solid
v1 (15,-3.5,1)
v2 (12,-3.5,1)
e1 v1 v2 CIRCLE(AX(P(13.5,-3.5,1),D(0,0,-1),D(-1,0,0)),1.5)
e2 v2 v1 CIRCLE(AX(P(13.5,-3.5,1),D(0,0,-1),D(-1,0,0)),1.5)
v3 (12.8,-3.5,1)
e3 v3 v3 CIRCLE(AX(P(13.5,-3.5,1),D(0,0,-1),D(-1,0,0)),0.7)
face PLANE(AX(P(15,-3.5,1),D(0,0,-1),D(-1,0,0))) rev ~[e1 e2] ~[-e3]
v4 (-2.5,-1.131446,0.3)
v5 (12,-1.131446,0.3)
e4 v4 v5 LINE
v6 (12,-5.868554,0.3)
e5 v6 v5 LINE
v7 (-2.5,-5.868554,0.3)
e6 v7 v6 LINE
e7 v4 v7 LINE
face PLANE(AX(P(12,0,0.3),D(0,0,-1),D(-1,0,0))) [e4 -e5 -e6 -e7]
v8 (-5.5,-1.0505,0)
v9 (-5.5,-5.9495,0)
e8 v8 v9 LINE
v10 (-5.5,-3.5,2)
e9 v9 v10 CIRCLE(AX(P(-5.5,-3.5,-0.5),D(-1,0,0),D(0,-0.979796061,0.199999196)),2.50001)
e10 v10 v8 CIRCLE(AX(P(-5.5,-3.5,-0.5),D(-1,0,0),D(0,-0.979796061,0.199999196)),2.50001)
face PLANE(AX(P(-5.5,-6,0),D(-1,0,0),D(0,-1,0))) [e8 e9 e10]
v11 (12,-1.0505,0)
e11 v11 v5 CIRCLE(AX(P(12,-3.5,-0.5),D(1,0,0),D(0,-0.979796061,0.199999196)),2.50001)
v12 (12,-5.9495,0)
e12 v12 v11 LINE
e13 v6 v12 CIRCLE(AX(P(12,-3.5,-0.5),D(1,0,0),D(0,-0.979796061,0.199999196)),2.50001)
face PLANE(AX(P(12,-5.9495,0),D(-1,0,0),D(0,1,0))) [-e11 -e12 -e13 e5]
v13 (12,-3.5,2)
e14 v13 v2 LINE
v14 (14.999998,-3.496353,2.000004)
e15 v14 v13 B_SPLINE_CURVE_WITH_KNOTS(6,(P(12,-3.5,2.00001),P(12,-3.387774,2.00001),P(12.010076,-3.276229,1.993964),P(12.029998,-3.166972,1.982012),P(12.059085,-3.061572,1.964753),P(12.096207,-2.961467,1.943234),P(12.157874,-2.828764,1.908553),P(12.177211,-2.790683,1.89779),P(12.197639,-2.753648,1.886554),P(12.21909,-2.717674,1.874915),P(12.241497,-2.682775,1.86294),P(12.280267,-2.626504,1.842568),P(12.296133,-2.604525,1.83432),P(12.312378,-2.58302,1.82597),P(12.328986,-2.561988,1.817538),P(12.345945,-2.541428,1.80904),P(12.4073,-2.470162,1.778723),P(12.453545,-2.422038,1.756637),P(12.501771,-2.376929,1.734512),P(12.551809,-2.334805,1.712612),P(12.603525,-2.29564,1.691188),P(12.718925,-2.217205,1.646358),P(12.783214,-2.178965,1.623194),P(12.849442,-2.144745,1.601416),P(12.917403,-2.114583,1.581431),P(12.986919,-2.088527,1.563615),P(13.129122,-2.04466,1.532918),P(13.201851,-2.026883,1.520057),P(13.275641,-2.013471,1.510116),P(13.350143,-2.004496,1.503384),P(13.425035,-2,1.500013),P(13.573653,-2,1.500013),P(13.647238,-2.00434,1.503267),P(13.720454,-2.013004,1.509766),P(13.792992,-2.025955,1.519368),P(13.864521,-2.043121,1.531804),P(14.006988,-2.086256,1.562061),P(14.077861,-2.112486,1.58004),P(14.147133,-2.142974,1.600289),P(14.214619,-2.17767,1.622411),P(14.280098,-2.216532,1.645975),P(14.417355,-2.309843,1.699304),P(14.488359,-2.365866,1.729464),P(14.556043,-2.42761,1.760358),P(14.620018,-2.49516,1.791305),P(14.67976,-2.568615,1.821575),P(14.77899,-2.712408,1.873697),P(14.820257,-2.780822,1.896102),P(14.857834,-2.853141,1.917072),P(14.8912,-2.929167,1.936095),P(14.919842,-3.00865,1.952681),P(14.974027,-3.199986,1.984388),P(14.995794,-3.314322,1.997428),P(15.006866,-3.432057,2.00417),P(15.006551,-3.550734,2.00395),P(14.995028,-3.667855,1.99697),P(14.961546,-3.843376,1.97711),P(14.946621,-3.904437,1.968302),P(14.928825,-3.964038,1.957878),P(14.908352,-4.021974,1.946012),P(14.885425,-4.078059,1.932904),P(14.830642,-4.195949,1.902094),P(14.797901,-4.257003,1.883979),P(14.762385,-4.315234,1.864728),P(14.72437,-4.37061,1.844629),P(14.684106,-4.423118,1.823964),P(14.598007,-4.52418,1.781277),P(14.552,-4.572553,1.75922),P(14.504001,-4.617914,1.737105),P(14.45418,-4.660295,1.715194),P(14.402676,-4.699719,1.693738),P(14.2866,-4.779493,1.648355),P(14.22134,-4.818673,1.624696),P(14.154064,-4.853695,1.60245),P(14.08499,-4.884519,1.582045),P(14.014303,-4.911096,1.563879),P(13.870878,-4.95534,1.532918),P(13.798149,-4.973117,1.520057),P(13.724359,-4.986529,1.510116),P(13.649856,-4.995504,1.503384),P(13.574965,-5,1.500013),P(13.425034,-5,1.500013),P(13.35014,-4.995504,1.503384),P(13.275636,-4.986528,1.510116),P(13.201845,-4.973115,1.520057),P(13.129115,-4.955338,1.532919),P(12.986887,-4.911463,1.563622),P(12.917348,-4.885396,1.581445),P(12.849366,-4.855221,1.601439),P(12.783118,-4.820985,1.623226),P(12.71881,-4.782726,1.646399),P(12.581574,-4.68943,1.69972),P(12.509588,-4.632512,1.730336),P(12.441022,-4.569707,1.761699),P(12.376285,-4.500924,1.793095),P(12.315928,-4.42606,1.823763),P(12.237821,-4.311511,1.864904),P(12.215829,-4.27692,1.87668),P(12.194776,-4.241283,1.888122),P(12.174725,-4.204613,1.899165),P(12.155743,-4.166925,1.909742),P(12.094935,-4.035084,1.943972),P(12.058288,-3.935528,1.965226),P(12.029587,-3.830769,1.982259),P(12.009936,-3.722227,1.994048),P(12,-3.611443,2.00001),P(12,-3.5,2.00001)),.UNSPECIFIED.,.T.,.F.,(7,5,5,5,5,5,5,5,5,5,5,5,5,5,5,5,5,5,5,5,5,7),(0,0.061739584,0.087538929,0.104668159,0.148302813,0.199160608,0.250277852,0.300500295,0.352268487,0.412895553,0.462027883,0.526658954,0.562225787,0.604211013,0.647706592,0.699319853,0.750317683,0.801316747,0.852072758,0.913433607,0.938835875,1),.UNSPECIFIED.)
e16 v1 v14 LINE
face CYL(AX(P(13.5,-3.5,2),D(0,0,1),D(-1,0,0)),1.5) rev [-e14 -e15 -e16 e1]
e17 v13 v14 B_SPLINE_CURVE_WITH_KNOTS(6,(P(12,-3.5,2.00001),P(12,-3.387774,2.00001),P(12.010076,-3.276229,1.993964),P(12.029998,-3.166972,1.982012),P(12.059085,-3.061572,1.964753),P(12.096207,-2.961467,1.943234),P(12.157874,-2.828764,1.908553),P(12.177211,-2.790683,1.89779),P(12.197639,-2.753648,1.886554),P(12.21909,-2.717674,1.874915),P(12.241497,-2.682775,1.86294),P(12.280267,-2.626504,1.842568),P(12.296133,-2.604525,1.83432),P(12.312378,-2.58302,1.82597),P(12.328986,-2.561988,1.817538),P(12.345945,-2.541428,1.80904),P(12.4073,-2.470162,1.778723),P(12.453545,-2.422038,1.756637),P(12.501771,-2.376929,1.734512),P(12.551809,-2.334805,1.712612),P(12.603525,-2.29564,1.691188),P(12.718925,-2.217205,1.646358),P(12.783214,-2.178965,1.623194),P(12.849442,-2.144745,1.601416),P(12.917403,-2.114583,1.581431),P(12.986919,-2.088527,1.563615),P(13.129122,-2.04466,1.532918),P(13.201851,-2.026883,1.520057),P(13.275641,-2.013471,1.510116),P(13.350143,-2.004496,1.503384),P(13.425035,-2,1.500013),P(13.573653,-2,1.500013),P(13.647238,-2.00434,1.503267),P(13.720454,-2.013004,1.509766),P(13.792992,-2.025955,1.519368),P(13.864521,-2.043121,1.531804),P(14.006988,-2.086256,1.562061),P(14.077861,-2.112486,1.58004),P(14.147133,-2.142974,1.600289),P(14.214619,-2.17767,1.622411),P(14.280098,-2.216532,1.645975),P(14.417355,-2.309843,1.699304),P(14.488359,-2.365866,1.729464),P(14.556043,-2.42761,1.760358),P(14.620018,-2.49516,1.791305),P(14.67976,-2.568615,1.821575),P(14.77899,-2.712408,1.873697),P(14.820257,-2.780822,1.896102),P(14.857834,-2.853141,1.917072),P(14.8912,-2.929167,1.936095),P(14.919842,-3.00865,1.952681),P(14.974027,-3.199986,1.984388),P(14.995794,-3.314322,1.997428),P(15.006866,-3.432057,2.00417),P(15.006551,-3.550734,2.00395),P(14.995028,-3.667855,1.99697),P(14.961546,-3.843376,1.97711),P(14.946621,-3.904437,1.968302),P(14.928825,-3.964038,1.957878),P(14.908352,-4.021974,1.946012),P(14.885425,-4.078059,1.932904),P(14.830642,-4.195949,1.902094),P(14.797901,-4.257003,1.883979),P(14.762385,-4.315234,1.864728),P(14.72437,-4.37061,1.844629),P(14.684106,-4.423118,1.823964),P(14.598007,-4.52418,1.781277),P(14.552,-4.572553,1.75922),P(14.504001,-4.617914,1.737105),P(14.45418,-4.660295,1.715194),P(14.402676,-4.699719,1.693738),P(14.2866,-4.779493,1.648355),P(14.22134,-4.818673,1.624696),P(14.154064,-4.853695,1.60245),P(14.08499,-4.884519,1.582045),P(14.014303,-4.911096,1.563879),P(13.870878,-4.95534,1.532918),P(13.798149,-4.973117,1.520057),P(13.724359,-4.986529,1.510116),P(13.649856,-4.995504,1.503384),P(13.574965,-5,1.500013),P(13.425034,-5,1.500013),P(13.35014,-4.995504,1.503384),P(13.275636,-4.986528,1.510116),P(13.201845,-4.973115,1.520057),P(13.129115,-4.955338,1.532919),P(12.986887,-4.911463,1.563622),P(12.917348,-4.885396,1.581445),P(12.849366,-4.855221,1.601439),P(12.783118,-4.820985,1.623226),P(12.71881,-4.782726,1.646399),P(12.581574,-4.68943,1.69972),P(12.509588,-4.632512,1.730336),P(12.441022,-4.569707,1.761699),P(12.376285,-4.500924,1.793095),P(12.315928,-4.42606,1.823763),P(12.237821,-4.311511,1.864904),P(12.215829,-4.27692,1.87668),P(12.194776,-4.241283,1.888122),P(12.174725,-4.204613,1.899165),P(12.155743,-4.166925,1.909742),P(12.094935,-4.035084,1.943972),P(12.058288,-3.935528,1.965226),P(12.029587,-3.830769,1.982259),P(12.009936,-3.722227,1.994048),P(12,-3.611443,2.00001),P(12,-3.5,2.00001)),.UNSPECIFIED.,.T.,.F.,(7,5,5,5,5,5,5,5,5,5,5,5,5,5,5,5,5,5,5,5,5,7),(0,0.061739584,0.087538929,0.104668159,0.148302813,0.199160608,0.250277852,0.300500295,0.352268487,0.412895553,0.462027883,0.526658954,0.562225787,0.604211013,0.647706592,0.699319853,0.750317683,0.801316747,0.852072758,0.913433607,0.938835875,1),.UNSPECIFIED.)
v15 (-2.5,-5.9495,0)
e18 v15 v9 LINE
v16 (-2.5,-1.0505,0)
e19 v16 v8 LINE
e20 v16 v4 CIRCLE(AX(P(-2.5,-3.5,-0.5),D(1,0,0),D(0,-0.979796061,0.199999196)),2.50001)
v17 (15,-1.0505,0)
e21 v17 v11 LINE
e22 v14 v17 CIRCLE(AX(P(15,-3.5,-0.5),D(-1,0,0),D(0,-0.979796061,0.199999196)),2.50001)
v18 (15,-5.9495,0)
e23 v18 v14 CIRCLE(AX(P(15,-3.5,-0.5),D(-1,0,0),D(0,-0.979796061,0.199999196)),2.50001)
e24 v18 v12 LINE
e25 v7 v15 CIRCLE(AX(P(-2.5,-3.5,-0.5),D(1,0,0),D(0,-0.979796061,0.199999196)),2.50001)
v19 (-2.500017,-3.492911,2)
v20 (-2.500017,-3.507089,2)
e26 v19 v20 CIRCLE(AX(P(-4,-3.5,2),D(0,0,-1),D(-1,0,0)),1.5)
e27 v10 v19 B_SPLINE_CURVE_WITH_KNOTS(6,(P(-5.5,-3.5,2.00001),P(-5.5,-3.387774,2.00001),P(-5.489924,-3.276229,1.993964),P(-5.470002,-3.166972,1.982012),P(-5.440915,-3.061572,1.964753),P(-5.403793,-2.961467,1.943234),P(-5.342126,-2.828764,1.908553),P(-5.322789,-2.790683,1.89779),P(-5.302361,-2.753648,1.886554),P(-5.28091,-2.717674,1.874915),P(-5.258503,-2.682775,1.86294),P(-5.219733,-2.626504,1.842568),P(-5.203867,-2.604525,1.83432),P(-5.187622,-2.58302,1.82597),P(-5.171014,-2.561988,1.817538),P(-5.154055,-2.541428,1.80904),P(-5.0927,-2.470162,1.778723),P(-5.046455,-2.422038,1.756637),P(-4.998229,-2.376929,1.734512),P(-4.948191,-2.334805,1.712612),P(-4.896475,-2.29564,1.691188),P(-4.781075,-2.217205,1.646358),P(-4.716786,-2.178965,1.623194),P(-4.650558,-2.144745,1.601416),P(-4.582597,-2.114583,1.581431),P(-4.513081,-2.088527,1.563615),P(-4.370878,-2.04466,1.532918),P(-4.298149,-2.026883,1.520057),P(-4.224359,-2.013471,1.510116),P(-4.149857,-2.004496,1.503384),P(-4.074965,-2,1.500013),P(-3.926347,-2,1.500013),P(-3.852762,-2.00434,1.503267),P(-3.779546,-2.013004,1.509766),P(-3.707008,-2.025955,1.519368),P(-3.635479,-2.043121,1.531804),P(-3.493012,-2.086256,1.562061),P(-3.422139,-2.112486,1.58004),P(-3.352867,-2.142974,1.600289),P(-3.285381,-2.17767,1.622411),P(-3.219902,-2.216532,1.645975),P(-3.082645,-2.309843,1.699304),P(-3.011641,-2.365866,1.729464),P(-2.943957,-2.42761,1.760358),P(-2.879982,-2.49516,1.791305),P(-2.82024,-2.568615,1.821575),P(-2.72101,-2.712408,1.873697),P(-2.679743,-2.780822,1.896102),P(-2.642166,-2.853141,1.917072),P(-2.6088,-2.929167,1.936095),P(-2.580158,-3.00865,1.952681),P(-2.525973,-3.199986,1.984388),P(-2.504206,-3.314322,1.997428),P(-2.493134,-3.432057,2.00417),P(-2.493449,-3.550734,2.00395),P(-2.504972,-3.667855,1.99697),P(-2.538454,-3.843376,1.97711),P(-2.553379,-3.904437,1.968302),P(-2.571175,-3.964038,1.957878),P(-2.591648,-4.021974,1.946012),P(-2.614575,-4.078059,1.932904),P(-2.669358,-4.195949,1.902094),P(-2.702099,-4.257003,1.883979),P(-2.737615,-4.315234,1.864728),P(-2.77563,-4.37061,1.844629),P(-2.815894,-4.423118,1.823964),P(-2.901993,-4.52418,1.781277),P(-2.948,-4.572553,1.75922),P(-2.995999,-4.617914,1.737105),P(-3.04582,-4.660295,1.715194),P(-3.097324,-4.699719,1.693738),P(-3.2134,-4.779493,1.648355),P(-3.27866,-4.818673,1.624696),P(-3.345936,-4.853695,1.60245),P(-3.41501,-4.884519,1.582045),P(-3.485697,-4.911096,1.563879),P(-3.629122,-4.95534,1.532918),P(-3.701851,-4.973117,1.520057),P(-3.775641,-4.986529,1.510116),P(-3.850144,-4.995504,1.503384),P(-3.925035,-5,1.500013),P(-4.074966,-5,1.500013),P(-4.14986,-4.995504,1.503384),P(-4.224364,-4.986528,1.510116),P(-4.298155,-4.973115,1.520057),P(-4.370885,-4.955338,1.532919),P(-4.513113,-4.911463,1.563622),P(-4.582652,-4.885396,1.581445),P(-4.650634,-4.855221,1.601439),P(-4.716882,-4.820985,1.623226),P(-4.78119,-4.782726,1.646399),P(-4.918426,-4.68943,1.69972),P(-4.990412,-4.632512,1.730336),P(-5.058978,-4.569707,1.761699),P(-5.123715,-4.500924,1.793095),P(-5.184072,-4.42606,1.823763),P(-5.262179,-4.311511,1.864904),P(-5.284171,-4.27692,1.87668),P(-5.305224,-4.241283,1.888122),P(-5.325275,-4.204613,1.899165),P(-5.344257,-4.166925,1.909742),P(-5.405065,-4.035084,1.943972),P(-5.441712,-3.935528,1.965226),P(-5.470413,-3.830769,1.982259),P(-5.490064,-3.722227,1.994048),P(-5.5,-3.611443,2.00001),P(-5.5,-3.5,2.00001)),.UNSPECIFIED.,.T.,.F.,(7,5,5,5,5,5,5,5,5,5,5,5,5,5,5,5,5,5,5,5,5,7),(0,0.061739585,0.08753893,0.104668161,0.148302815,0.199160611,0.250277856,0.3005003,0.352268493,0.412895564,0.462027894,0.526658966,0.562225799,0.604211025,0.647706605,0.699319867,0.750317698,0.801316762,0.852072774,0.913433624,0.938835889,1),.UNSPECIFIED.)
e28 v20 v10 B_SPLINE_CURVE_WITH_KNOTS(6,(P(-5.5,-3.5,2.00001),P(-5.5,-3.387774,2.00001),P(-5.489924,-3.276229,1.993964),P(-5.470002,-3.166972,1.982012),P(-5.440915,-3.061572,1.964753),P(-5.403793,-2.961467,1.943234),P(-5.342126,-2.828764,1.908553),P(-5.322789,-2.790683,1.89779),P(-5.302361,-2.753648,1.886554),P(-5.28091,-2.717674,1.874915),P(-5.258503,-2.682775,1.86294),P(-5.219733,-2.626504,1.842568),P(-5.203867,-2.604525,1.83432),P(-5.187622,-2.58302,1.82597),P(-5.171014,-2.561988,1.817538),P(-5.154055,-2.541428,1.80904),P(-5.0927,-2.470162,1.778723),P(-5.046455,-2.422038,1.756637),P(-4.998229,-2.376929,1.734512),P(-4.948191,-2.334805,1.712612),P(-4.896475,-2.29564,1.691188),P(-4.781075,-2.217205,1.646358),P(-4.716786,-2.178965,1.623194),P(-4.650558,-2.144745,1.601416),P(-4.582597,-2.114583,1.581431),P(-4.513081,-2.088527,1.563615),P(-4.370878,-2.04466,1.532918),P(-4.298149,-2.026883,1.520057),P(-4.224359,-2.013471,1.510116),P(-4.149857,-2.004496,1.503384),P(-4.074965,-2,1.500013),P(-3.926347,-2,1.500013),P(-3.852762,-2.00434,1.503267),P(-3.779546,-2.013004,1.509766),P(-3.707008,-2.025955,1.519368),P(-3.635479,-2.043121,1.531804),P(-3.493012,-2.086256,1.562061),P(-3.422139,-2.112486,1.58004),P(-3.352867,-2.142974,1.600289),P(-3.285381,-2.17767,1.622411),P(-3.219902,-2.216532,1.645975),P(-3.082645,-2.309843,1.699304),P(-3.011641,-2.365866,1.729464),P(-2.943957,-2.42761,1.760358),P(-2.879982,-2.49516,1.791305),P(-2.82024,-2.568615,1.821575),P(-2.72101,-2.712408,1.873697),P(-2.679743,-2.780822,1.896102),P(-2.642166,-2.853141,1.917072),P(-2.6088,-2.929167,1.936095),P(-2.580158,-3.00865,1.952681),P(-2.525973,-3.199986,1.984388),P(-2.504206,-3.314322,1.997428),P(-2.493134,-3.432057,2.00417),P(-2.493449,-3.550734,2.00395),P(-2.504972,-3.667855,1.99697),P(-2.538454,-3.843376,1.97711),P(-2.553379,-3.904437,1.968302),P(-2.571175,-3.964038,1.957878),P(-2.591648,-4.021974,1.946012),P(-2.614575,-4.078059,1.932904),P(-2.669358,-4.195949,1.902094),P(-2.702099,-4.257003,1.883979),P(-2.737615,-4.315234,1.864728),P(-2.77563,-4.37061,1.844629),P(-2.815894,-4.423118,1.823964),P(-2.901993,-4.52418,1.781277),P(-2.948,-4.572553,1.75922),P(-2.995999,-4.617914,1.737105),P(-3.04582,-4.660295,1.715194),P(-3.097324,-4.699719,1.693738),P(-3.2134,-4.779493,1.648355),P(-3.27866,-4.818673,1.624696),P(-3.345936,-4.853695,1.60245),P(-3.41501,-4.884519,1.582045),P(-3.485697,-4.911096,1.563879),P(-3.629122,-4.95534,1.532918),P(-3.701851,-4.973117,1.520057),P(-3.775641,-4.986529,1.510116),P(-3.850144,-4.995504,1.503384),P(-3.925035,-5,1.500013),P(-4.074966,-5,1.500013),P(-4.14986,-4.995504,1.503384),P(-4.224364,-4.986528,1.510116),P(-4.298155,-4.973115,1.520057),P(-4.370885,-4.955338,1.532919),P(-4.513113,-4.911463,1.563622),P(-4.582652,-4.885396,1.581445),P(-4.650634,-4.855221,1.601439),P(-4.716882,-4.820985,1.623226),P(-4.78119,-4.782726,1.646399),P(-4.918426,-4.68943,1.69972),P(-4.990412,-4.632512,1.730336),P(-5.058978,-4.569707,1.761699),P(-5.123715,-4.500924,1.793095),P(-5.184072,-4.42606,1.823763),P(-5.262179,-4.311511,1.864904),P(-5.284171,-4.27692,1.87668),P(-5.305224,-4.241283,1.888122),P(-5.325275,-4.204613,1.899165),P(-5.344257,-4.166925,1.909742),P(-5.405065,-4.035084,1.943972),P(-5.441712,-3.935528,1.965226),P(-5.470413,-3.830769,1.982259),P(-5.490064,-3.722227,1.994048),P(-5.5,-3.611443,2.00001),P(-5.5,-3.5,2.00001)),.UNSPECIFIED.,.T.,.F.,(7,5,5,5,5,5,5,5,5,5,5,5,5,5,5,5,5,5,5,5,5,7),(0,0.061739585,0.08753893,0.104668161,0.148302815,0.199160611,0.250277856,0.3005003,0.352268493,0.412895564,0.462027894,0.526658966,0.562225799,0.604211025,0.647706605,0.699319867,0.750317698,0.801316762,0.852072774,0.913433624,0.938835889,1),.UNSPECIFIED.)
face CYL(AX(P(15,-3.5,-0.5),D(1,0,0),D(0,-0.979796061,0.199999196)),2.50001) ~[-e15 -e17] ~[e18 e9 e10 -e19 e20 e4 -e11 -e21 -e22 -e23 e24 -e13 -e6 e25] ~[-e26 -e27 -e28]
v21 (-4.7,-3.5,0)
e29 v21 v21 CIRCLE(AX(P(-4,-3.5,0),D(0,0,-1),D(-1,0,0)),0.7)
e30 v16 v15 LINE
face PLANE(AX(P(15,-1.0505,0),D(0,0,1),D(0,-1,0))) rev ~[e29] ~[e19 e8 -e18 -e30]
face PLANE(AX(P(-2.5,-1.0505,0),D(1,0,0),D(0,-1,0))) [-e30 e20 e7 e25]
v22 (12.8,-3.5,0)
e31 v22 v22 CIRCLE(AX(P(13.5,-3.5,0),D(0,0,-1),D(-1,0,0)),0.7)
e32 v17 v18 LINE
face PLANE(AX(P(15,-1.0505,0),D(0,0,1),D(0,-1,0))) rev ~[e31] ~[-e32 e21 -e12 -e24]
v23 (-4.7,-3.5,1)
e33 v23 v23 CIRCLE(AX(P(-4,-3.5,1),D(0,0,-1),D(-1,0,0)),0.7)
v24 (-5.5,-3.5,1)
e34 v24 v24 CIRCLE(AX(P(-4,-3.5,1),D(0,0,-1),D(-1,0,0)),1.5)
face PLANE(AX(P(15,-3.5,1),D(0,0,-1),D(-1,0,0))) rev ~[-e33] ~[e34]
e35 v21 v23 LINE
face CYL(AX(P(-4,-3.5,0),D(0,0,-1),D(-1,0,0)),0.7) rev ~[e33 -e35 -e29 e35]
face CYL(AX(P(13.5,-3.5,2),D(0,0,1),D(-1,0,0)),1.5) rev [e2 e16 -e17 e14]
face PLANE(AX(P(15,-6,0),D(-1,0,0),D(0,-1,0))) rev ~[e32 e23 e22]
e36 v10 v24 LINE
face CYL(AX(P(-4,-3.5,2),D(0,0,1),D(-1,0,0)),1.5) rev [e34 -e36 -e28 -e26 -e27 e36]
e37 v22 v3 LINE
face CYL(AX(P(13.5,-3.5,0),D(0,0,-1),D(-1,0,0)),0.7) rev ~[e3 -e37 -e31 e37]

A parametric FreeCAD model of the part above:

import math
import FreeCAD as App
import Part
import Sketcher

V = App.Vector
Q = App.Units.Quantity

doc = App.newDocument("Part")
body = doc.addObject("PartDesign::Body", "Body")

sketch1 = doc.addObject("Sketcher::SketchObject", "Sketch")
body.addObject(sketch1)
sketch1.AttachmentSupport = (doc.YZ_Plane, [""])
sketch1.MapMode = "FlatFace"
sketch1.AttachmentOffset = App.Placement(V(0, 0, 15), App.Rotation())
sketch1.addGeometry([
    Part.LineSegment(V(-1.1, 0, 0), V(-5.9, 0, 0)),
    Part.ArcOfCircle(Part.Circle(V(-3.5, -0.5, 0), V(0, 0, 1), 2.5), math.radians(12), math.radians(168)),
], False)
sketch1.addConstraint([
    Sketcher.Constraint("Coincident", 0, 1, 1, 1),
    Sketcher.Constraint("Coincident", 1, 2, 0, 2),
    Sketcher.Constraint("Horizontal", 0),
    Sketcher.Constraint("PointOnObject", 0, 1, -1),
    Sketcher.Constraint("Radius", 1, Q("2.5 mm")),
    Sketcher.Constraint("DistanceX", 1, 3, -1, 1, Q("3.5 mm")),
    Sketcher.Constraint("DistanceY", 1, 3, -1, 1, Q("0.5 mm")),
])
pad1 = doc.addObject("PartDesign::Pad", "Pad")
body.addObject(pad1)
pad1.Profile = sketch1
pad1.Length = 20.5
pad1.Reversed = True

sketch2 = doc.addObject("Sketcher::SketchObject", "Sketch001")
body.addObject(sketch2)
sketch2.AttachmentSupport = (doc.XY_Plane, [""])
sketch2.MapMode = "FlatFace"
sketch2.addGeometry([
    Part.LineSegment(V(12, -5.9, 0), V(-2.5, -5.9, 0)),
    Part.LineSegment(V(-2.5, -5.9, 0), V(-2.5, -1.1, 0)),
    Part.LineSegment(V(-2.5, -1.1, 0), V(12, -1.1, 0)),
    Part.LineSegment(V(12, -1.1, 0), V(12, -5.9, 0)),
], False)
sketch2.addConstraint([
    Sketcher.Constraint("Coincident", 0, 2, 1, 1),
    Sketcher.Constraint("Coincident", 1, 2, 2, 1),
    Sketcher.Constraint("Coincident", 2, 2, 3, 1),
    Sketcher.Constraint("Coincident", 3, 2, 0, 1),
    Sketcher.Constraint("Horizontal", 0),
    Sketcher.Constraint("Vertical", 1),
    Sketcher.Constraint("Horizontal", 2),
    Sketcher.Constraint("Vertical", 3),
    Sketcher.Constraint("DistanceX", 0, 2, 0, 1, Q("14.5 mm")),
    Sketcher.Constraint("DistanceX", -1, 1, 2, 2, Q("12 mm")),
    Sketcher.Constraint("DistanceY", 1, 1, 1, 2, Q("4.899 mm")),
    Sketcher.Constraint("DistanceY", 0, 2, -1, 1, Q("5.9495 mm")),
])
pocket1 = doc.addObject("PartDesign::Pocket", "Pocket")
body.addObject(pocket1)
pocket1.Profile = sketch2
pocket1.Length = 0.3
pocket1.Reversed = True

sketch3 = doc.addObject("Sketcher::SketchObject", "Sketch002")
body.addObject(sketch3)
sketch3.AttachmentSupport = (doc.XY_Plane, [""])
sketch3.MapMode = "FlatFace"
sketch3.addGeometry([
    Part.Circle(V(-4, -3.5, 0), V(0, 0, 1), 0.7),
    Part.Circle(V(13.5, -3.5, 0), V(0, 0, 1), 0.7),
], False)
sketch3.addConstraint([
    Sketcher.Constraint("Equal", 0, 1),
    Sketcher.Constraint("Horizontal", 0, 3, 1, 3),
    Sketcher.Constraint("Diameter", 0, Q("1.4 mm")),
    Sketcher.Constraint("DistanceX", 0, 3, -1, 1, Q("4 mm")),
    Sketcher.Constraint("DistanceY", 0, 3, -1, 1, Q("3.5 mm")),
    Sketcher.Constraint("DistanceX", -1, 1, 1, 3, Q("13.5 mm")),
])
pocket2 = doc.addObject("PartDesign::Pocket", "Pocket001")
body.addObject(pocket2)
pocket2.Profile = sketch3
pocket2.Length = 2
pocket2.Reversed = True

sketch4 = doc.addObject("Sketcher::SketchObject", "Sketch003")
body.addObject(sketch4)
sketch4.AttachmentSupport = (doc.XY_Plane, [""])
sketch4.MapMode = "FlatFace"
sketch4.AttachmentOffset = App.Placement(V(0, 0, 2), App.Rotation())
sketch4.addGeometry([
    Part.Circle(V(-4, -3.5, 0), V(0, 0, 1), 1.5),
    Part.Circle(V(13.5, -3.5, 0), V(0, 0, 1), 1.5),
], False)
sketch4.addConstraint([
    Sketcher.Constraint("Equal", 0, 1),
    Sketcher.Constraint("Horizontal", 0, 3, 1, 3),
    Sketcher.Constraint("Diameter", 0, Q("3 mm")),
    Sketcher.Constraint("DistanceX", 0, 3, -1, 1, Q("4 mm")),
    Sketcher.Constraint("DistanceY", 0, 3, -1, 1, Q("3.5 mm")),
    Sketcher.Constraint("DistanceX", -1, 1, 1, 3, Q("13.5 mm")),
])
pocket3 = doc.addObject("PartDesign::Pocket", "Pocket002")
body.addObject(pocket3)
pocket3.Profile = sketch4
pocket3.Length = 1

doc.recompute()
